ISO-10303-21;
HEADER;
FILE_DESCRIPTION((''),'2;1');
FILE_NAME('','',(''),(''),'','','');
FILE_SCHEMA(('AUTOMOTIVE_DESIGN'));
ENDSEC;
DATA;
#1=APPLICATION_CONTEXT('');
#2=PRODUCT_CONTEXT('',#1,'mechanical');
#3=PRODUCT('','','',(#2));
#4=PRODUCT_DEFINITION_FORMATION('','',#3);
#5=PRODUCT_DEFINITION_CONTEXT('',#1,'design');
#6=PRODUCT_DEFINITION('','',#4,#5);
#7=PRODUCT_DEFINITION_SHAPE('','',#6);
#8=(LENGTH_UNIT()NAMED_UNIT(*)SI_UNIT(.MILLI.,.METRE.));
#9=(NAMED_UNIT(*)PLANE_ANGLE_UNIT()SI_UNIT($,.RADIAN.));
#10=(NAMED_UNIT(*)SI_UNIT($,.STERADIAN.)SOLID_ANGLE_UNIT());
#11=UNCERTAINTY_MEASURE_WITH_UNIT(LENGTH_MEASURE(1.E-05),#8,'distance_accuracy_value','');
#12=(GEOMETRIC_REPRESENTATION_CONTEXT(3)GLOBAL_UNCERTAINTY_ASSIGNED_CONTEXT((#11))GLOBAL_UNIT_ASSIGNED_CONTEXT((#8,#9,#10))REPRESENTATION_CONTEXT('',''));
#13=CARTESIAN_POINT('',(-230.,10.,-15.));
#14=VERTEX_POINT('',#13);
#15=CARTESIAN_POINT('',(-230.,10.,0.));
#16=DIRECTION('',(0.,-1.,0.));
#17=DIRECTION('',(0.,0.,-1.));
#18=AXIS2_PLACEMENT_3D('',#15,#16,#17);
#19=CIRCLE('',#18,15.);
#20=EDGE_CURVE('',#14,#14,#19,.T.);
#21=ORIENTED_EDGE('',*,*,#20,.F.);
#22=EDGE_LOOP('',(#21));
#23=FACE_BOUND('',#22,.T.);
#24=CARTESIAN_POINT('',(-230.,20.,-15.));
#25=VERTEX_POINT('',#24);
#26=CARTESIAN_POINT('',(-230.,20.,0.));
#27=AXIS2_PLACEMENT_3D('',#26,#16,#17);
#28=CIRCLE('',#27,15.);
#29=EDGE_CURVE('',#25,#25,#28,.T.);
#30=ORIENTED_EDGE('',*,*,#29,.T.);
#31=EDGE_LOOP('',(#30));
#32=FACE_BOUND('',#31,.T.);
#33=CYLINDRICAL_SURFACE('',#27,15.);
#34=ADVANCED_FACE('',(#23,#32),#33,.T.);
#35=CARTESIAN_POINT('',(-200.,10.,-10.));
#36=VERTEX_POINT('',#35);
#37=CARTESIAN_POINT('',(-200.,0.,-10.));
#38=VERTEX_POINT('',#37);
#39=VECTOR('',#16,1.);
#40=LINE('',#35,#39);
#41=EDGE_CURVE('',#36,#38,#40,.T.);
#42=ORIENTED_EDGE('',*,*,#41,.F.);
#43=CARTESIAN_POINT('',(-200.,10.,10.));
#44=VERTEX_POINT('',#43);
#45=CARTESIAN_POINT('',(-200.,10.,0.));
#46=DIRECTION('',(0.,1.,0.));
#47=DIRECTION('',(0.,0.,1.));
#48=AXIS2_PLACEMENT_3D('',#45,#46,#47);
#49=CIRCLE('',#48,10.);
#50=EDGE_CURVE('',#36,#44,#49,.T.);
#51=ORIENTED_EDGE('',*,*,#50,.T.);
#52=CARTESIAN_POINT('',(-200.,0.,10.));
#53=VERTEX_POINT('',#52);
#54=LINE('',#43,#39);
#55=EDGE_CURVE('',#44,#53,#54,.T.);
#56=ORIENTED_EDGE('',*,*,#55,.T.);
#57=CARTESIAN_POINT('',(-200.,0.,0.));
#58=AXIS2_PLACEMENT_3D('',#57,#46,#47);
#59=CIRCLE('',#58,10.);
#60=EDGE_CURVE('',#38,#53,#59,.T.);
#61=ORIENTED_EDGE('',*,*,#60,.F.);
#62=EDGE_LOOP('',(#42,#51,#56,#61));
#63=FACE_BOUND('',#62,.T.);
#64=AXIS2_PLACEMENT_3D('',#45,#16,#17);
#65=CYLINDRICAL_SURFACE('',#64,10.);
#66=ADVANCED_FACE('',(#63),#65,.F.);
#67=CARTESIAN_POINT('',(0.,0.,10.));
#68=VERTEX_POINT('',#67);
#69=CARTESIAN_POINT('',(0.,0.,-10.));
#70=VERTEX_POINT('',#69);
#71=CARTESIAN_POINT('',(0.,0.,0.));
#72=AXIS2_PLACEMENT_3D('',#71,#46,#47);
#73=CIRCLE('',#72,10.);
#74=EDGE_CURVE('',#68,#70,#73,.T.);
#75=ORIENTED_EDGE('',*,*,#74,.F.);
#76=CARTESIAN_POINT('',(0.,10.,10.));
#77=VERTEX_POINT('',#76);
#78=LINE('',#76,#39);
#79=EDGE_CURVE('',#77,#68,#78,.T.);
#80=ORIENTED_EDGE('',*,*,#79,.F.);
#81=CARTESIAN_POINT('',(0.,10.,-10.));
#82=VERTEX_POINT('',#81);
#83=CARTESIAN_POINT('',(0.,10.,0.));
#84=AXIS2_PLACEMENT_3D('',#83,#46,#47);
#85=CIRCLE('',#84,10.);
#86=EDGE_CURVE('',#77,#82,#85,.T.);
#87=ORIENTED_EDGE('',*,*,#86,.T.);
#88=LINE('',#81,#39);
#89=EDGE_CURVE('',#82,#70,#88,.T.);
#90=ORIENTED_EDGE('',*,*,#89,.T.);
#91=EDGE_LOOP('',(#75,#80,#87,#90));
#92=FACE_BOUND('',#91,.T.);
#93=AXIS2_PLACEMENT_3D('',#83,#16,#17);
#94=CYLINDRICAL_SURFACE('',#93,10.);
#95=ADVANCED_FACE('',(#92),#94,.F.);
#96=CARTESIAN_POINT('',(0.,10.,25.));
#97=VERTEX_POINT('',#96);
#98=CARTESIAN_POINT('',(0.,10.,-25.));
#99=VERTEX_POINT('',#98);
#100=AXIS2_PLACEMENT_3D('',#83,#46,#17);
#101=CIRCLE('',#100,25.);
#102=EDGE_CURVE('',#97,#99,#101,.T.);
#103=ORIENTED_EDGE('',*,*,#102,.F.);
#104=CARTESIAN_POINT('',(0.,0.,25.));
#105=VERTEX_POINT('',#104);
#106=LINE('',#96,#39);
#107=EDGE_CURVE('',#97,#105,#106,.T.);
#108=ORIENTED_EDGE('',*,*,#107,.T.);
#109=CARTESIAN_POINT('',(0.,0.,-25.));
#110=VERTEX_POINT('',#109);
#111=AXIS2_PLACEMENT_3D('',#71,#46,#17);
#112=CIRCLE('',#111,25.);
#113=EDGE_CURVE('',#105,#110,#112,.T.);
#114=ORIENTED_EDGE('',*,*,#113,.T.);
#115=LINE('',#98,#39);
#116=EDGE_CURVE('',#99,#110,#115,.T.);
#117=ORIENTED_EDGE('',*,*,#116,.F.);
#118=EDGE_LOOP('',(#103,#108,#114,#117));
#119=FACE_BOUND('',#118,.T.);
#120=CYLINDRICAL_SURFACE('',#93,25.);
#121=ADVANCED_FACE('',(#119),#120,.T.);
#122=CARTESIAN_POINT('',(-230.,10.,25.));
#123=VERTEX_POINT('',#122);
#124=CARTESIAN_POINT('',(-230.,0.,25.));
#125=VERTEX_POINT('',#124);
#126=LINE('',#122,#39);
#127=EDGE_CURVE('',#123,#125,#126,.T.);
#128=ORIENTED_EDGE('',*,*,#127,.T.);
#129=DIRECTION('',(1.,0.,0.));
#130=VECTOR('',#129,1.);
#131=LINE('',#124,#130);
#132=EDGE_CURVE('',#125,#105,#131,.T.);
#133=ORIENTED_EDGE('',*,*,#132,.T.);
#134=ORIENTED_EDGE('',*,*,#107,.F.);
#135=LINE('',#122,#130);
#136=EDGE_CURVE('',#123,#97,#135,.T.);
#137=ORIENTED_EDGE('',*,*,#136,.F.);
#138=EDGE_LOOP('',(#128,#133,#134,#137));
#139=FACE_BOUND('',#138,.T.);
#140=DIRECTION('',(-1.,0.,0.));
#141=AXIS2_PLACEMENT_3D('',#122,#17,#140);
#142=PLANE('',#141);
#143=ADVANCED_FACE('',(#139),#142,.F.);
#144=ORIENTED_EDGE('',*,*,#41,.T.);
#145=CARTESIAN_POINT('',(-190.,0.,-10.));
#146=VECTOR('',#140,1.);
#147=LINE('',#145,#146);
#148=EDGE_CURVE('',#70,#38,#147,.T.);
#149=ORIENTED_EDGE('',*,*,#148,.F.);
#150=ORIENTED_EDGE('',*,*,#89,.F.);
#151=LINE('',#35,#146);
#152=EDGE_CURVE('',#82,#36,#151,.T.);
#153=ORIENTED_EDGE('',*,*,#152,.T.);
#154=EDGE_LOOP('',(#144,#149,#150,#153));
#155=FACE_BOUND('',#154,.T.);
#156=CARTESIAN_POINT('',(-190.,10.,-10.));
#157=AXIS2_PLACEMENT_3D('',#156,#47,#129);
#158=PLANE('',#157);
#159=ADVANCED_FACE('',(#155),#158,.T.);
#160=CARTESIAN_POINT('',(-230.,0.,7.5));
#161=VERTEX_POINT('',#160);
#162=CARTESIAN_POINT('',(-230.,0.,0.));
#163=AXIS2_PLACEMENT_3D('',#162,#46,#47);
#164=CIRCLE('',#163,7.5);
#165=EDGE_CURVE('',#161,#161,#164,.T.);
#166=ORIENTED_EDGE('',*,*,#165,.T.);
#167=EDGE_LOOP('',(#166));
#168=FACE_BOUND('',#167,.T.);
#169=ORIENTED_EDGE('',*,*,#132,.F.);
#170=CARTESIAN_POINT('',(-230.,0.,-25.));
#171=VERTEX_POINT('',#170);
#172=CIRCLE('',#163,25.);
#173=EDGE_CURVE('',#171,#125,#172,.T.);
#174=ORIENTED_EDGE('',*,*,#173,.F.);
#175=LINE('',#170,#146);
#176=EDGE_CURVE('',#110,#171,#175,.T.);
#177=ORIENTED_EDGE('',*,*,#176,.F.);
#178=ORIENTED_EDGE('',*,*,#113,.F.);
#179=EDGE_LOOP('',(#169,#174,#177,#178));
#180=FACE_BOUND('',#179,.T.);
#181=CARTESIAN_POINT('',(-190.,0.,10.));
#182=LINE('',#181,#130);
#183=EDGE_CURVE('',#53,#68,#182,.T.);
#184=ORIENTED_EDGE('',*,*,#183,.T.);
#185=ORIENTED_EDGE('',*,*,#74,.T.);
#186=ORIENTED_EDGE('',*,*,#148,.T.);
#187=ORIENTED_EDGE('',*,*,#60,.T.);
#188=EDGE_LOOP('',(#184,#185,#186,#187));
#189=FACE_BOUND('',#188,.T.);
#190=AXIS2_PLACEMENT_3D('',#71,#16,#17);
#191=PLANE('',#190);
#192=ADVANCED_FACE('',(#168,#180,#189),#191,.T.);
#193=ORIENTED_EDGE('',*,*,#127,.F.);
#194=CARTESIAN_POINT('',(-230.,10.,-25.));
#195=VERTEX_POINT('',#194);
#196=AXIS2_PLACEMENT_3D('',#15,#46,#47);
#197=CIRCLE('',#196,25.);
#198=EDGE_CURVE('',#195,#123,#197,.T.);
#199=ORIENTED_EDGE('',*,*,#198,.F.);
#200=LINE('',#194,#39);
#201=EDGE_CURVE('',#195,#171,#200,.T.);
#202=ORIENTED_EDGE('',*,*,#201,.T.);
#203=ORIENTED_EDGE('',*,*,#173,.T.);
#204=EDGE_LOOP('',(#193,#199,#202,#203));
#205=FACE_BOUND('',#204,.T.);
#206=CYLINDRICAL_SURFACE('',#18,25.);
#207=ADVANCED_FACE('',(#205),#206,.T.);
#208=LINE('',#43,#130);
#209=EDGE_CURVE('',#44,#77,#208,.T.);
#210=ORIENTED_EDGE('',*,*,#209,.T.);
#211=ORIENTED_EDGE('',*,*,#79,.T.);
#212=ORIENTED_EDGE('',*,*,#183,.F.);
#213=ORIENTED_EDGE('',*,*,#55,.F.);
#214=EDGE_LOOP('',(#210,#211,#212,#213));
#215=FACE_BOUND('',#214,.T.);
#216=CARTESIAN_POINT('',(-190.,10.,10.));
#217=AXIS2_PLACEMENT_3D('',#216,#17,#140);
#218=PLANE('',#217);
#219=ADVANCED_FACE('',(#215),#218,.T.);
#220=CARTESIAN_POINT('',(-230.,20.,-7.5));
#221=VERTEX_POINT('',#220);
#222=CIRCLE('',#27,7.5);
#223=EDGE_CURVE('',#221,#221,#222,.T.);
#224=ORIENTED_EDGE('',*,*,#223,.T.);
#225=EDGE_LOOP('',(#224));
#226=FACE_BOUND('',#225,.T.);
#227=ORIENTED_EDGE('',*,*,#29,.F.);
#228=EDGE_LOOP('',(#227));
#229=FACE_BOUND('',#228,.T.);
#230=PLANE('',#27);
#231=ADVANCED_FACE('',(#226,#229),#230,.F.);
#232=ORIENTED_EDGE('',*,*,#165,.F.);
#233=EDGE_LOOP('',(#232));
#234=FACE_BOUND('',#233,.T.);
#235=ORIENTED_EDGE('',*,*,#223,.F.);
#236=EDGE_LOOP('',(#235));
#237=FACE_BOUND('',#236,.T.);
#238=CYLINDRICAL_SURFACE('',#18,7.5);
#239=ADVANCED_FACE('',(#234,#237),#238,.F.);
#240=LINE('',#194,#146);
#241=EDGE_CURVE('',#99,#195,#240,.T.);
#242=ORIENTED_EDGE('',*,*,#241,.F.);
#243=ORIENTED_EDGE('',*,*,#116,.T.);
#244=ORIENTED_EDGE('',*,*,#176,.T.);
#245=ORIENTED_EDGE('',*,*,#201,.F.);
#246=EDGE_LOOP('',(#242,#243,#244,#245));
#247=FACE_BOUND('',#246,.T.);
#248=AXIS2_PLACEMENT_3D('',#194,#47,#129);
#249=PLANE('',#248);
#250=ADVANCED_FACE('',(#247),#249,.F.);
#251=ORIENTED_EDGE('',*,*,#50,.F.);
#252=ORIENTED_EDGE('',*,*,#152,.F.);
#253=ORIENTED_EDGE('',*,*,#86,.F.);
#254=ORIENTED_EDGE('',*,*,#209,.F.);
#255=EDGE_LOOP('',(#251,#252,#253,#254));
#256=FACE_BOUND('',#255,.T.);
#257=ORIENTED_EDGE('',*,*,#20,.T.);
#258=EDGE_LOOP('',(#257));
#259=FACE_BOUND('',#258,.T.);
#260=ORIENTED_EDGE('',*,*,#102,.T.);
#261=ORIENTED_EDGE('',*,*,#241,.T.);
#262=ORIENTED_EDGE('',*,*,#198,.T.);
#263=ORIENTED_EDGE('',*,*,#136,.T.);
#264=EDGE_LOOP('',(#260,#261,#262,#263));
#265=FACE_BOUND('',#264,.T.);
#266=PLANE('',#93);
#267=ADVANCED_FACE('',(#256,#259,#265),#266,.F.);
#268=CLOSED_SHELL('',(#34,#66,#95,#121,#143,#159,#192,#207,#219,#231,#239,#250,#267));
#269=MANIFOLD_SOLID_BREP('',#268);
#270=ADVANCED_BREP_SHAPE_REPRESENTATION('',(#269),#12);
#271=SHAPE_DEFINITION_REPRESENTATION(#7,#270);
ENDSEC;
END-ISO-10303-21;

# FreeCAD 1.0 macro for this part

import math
import FreeCAD as App
import Part
import Sketcher

V = App.Vector

doc = App.newDocument("Part")
body = doc.addObject("PartDesign::Body", "Body")

# Sketch on XZ plane
sketch1 = doc.addObject("Sketcher::SketchObject", "Sketch")
body.addObject(sketch1)
sketch1.AttachmentSupport = (doc.XZ_Plane, [""])
sketch1.MapMode = "FlatFace"
sketch1.addGeometry([
    Part.LineSegment(V(0, -25, 0), V(-230, -25, 0)),  # 0
    Part.ArcOfCircle(Part.Circle(V(-230, 0, 0), V(0, 0, 1), 25), math.radians(90), math.radians(270)),  # 1
    Part.LineSegment(V(-230, 25, 0), V(0, 25, 0)),  # 2
    Part.ArcOfCircle(Part.Circle(V(0, 0, 0), V(0, 0, 1), 25), math.radians(-90), math.radians(90)),  # 3
    Part.ArcOfCircle(Part.Circle(V(0, 0, 0), V(0, 0, 1), 10), math.radians(-90), math.radians(90)),  # 4
    Part.LineSegment(V(0, 10, 0), V(-200, 10, 0)),  # 5
    Part.ArcOfCircle(Part.Circle(V(-200, 0, 0), V(0, 0, 1), 10), math.radians(90), math.radians(270)),  # 6
    Part.LineSegment(V(-200, -10, 0), V(0, -10, 0)),  # 7
    Part.Circle(V(-230, 0, 0), V(0, 0, 1), 8),  # 8
], False)
sketch1.addConstraint([
    Sketcher.Constraint("Tangent", 0, 2, 1, 2),
    Sketcher.Constraint("Tangent", 1, 1, 2, 1),
    Sketcher.Constraint("Tangent", 2, 2, 3, 2),
    Sketcher.Constraint("Tangent", 3, 1, 0, 1),
    Sketcher.Constraint("Tangent", 4, 2, 5, 1),
    Sketcher.Constraint("Tangent", 5, 2, 6, 1),
    Sketcher.Constraint("Tangent", 6, 2, 7, 1),
    Sketcher.Constraint("Tangent", 7, 2, 4, 1),
    Sketcher.Constraint("Horizontal", 0),
    Sketcher.Constraint("Horizontal", 2),
    Sketcher.Constraint("Horizontal", 5),
    Sketcher.Constraint("Horizontal", 7),
    Sketcher.Constraint("Coincident", 3, 3, -1, 1),
    Sketcher.Constraint("Coincident", 4, 3, -1, 1),
    Sketcher.Constraint("Coincident", 8, 3, 1, 3),
    Sketcher.Constraint("Diameter", 8, 15.0),
    Sketcher.Constraint("Radius", 1, 25.0),
    Sketcher.Constraint("Radius", 4, 10.0),
    Sketcher.Constraint("DistanceX", 0, 2, 0, 1, 230.0),
    Sketcher.Constraint("DistanceX", 5, 2, 5, 1, 200.0),
])
pad1 = doc.addObject("PartDesign::Pad", "Pad")
body.addObject(pad1)
pad1.Profile = sketch1
pad1.Length = 10
pad1.Reversed = True

# Sketch on XZ plane
sketch2 = doc.addObject("Sketcher::SketchObject", "Sketch001")
body.addObject(sketch2)
sketch2.AttachmentSupport = (doc.XZ_Plane, [""])
sketch2.MapMode = "FlatFace"
sketch2.addGeometry([
    Part.Circle(V(-230, 0, 0), V(0, 0, 1), 15),
    Part.Circle(V(-230, 0, 0), V(0, 0, 1), 8),
], False)
sketch2.addConstraint([
    Sketcher.Constraint("Coincident", 1, 3, 0, 3),
    Sketcher.Constraint("PointOnObject", 0, 3, -1),
    Sketcher.Constraint("Diameter", 0, 30.0),
    Sketcher.Constraint("Diameter", 1, 15.0),
    Sketcher.Constraint("DistanceX", 0, 3, -1, 1, 230.0),
])
pad2 = doc.addObject("PartDesign::Pad", "Pad001")
body.addObject(pad2)
pad2.Profile = sketch2
pad2.Length = 20
pad2.Reversed = True

doc.recompute()
